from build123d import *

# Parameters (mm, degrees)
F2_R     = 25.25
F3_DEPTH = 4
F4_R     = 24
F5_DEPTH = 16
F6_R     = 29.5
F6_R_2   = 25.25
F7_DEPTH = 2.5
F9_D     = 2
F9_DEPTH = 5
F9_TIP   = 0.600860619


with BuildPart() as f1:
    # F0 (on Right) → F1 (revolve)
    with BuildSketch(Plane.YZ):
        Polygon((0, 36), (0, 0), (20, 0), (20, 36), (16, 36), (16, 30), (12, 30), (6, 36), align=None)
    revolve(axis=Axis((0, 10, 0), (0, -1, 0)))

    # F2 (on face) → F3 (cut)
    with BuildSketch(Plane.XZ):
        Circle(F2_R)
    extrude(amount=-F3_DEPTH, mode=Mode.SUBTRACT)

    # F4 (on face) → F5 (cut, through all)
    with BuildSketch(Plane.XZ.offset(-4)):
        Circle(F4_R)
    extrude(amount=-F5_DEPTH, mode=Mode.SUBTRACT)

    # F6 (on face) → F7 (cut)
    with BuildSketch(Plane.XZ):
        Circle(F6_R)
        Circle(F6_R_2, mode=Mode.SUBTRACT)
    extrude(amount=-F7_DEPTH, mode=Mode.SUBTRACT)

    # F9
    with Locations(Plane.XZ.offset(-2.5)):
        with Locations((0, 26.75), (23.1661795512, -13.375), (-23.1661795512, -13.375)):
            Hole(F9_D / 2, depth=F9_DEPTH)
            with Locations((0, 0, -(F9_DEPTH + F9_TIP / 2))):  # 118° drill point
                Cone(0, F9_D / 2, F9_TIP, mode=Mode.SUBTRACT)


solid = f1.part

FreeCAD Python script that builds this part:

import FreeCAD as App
import Part
import Sketcher


def add_polygon(sketch, points):
    """Adds a closed chain of lines whose ends are joined by coincident constraints."""
    first, n = sketch.GeometryCount, len(points)
    for a, b in zip(points, points[1:] + points[:1]):
        sketch.addGeometry(Part.LineSegment(App.Vector(*a, 0), App.Vector(*b, 0)), False)
    for i in range(n):
        sketch.addConstraint(Sketcher.Constraint("Coincident", first + i, 2, first + (i + 1) % n, 1))

doc = App.newDocument("Part")
body = doc.addObject("PartDesign::Body", "Body")

sketch1 = body.newObject("Sketcher::SketchObject", "Sketch")
sketch1.AttachmentSupport = (doc.getObject("YZ_Plane"), [""])
sketch1.MapMode = "FlatFace"
add_polygon(sketch1, [(0, 36), (0, 0), (20, 0), (20, 36), (16, 36), (16, 30), (12, 30), (6, 36)])
sketch1.addConstraint(Sketcher.Constraint("Vertical", 0))
sketch1.addConstraint(Sketcher.Constraint("Horizontal", 1))
sketch1.addConstraint(Sketcher.Constraint("Vertical", 2))
sketch1.addConstraint(Sketcher.Constraint("Horizontal", 3))
sketch1.addConstraint(Sketcher.Constraint("Vertical", 4))
sketch1.addConstraint(Sketcher.Constraint("Horizontal", 5))
sketch1.addConstraint(Sketcher.Constraint("Horizontal", 7))
sketch1.addConstraint(Sketcher.Constraint("Coincident", 0, 2, -1, 1))
sketch1.addConstraint(Sketcher.Constraint("Horizontal", 3, 2, 6, 2))
sketch1.addConstraint(Sketcher.Constraint("Equal", 3, 5))
sketch1.addConstraint(Sketcher.Constraint("Equal", 7, 4))
sketch1.addConstraint(Sketcher.Constraint("DistanceX", 1, 1, 1, 2, 20.0))
sketch1.addConstraint(Sketcher.Constraint("DistanceX", 3, 2, 3, 1, 4.0))
sketch1.addConstraint(Sketcher.Constraint("DistanceX", 7, 2, 7, 1, 6.0))
sketch1.addConstraint(Sketcher.Constraint("DistanceY", 0, 2, 0, 1, 36.0))
revolution = body.newObject("PartDesign::Revolution", "Revolution")
revolution.Profile = sketch1
revolution.ReferenceAxis = (sketch1, ["H_Axis"])
revolution.Angle = 360

sketch2 = body.newObject("Sketcher::SketchObject", "Sketch001")
sketch2.AttachmentSupport = (doc.getObject("XZ_Plane"), [""])
sketch2.MapMode = "FlatFace"
sketch2.addGeometry(Part.Circle(App.Vector(0, 0, 0), App.Vector(0, 0, 1), 25.25), False)
sketch2.addConstraint(Sketcher.Constraint("Coincident", 0, 3, -1, 1))
sketch2.addConstraint(Sketcher.Constraint("Diameter", 0, 50.5))
pocket1 = body.newObject("PartDesign::Pocket", "Pocket")
pocket1.Profile = sketch2
pocket1.Length = 4

sketch3 = body.newObject("Sketcher::SketchObject", "Sketch002")
sketch3.AttachmentSupport = (doc.getObject("XZ_Plane"), [""])
sketch3.MapMode = "FlatFace"
sketch3.AttachmentOffset = App.Placement(App.Vector(0, 0, -4), App.Rotation())
sketch3.addGeometry(Part.Circle(App.Vector(0, 0, 0), App.Vector(0, 0, 1), 24), False)
sketch3.addConstraint(Sketcher.Constraint("Coincident", 0, 3, -1, 1))
sketch3.addConstraint(Sketcher.Constraint("Diameter", 0, 48.0))
pocket2 = body.newObject("PartDesign::Pocket", "Pocket001")
pocket2.Profile = sketch3
pocket2.Type = "ThroughAll"

sketch4 = body.newObject("Sketcher::SketchObject", "Sketch003")
sketch4.AttachmentSupport = (doc.getObject("XZ_Plane"), [""])
sketch4.MapMode = "FlatFace"
sketch4.addGeometry(Part.Circle(App.Vector(0, 0, 0), App.Vector(0, 0, 1), 29.5), False)
sketch4.addGeometry(Part.Circle(App.Vector(0, 0, 0), App.Vector(0, 0, 1), 25.25), False)
sketch4.addConstraint(Sketcher.Constraint("Coincident", 0, 3, -1, 1))
sketch4.addConstraint(Sketcher.Constraint("Coincident", 1, 3, -1, 1))
sketch4.addConstraint(Sketcher.Constraint("Diameter", 0, 59.0))
sketch4.addConstraint(Sketcher.Constraint("Diameter", 1, 50.5))
pocket3 = body.newObject("PartDesign::Pocket", "Pocket002")
pocket3.Profile = sketch4
pocket3.Length = 2.5

sketch5 = body.newObject("Sketcher::SketchObject", "Sketch004")
sketch5.AttachmentSupport = (doc.getObject("XZ_Plane"), [""])
sketch5.MapMode = "FlatFace"
sketch5.AttachmentOffset = App.Placement(App.Vector(0, 0, -2.5), App.Rotation())
sketch5.addGeometry(Part.Circle(App.Vector(0, 26.75, 0), App.Vector(0, 0, 1), 1), False)
sketch5.addGeometry(Part.Circle(App.Vector(23.16618, -13.375, 0), App.Vector(0, 0, 1), 1), False)
sketch5.addGeometry(Part.Circle(App.Vector(-23.16618, -13.375, 0), App.Vector(0, 0, 1), 1), False)
sketch5.addConstraint(Sketcher.Constraint("Equal", 0, 1))
sketch5.addConstraint(Sketcher.Constraint("Equal", 1, 2))
sketch5.addConstraint(Sketcher.Constraint("Symmetric", 1, 3, 2, 3, -2))
sketch5.addConstraint(Sketcher.Constraint("PointOnObject", 0, 3, -2))
sketch5.addConstraint(Sketcher.Constraint("Diameter", 0, 2.0))
sketch5.addConstraint(Sketcher.Constraint("DistanceY", -1, 1, 0, 3, 26.75))
sketch5.addConstraint(Sketcher.Constraint("DistanceY", 1, 3, -1, 1, 13.375))
sketch5.addConstraint(Sketcher.Constraint("DistanceX", -1, 1, 1, 3, 23.16618))
doc.recompute()
hole = body.newObject("PartDesign::Hole", "Hole")
hole.Profile = sketch5
hole.ThreadType = "None"
hole.Diameter = 2
hole.DepthType = "Dimension"
hole.Depth = 5
hole.DrillPoint = "Angled"
hole.DrillPointAngle = 118

doc.recompute()
